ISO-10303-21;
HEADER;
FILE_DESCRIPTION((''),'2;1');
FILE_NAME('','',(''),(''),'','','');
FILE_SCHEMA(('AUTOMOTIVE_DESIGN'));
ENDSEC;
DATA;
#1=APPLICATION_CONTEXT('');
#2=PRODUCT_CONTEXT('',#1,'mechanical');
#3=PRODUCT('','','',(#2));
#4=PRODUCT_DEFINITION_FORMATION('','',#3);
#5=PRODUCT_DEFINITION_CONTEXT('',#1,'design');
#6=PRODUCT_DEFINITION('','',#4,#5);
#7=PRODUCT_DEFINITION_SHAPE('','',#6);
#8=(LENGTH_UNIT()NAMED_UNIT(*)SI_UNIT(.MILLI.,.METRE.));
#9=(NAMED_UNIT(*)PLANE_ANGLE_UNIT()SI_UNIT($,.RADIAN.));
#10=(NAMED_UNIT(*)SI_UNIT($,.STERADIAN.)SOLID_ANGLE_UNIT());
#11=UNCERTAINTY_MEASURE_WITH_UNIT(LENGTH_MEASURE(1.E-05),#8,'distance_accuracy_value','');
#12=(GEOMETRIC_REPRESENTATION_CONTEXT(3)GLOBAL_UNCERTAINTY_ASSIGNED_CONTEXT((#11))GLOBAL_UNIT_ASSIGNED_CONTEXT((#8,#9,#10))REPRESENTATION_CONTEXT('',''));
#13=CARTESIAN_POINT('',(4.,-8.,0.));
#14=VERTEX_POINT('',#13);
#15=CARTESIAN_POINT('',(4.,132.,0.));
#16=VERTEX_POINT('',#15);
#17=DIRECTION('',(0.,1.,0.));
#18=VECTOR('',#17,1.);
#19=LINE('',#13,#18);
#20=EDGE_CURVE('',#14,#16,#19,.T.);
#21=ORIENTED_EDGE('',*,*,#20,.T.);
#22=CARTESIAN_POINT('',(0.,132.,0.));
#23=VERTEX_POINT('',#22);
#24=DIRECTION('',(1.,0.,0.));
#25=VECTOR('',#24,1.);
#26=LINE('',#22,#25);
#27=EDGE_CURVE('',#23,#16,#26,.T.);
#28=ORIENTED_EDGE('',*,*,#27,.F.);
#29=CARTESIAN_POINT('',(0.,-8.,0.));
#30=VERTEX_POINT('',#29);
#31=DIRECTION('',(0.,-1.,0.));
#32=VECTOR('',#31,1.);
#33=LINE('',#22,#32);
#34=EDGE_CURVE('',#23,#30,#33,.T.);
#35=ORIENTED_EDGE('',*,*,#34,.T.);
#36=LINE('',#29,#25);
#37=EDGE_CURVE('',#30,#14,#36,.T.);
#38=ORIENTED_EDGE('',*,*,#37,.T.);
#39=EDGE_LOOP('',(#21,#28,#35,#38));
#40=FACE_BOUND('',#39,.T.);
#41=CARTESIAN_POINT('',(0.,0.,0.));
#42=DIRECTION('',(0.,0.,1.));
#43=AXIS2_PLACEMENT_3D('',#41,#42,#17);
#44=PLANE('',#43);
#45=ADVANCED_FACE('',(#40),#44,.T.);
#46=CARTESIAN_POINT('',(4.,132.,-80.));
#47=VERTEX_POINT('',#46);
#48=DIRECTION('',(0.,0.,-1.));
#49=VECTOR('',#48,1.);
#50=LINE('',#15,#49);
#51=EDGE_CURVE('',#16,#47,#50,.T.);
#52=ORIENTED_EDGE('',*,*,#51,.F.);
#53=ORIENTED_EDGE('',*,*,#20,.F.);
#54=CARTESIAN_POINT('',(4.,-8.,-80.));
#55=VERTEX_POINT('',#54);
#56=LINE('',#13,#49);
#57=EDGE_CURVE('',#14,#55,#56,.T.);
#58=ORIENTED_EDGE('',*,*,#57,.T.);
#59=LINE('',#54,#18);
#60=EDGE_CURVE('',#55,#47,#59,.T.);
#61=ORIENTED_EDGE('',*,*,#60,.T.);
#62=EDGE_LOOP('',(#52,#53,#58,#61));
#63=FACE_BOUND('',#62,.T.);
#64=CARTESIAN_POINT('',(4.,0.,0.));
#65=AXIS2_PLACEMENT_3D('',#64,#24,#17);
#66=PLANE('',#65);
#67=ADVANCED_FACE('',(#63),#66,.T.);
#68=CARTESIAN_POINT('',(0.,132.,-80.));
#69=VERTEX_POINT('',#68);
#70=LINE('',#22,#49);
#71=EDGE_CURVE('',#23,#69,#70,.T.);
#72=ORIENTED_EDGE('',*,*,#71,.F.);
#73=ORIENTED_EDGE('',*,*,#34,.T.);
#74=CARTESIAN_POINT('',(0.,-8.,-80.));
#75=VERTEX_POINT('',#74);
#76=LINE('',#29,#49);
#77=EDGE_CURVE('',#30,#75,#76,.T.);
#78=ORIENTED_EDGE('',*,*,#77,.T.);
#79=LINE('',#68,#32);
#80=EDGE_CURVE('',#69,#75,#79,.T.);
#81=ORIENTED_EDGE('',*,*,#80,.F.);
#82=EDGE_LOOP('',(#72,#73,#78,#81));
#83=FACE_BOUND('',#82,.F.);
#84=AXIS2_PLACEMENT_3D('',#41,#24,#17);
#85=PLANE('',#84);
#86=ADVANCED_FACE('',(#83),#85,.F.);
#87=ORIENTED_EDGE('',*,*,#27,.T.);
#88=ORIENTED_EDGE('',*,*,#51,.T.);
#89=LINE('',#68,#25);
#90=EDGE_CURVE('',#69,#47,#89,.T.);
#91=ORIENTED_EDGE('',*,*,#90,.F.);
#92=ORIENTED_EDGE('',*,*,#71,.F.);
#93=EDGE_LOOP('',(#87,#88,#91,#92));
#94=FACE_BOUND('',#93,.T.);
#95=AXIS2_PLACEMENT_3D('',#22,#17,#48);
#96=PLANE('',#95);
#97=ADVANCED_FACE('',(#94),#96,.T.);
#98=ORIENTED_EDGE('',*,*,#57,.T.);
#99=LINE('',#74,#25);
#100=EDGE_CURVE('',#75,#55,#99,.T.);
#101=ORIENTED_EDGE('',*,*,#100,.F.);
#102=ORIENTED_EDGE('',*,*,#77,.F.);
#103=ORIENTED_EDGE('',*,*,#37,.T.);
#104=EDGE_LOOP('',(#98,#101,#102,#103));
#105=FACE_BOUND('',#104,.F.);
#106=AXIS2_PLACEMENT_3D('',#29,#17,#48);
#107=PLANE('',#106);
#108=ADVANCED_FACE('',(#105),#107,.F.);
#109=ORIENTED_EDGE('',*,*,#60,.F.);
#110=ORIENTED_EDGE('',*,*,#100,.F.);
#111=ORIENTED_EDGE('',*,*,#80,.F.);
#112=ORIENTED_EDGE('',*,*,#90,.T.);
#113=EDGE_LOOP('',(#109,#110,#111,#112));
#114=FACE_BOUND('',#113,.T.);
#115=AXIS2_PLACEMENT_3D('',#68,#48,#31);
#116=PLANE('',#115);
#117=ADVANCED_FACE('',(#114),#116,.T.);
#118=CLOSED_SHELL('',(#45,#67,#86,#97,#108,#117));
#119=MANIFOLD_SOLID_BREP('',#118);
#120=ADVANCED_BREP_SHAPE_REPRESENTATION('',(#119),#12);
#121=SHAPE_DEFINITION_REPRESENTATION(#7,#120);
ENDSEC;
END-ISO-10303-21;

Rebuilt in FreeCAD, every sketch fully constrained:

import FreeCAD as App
import Part
import Sketcher
Q = App.Units.Quantity


def add_polygon(sketch, points):
    """Adds a closed chain of lines whose ends are joined by coincident constraints."""
    first, n = sketch.GeometryCount, len(points)
    for a, b in zip(points, points[1:] + points[:1]):
        sketch.addGeometry(Part.LineSegment(App.Vector(*a, 0), App.Vector(*b, 0)), False)
    for i in range(n):
        sketch.addConstraint(Sketcher.Constraint("Coincident", first + i, 2, first + (i + 1) % n, 1))

doc = App.newDocument("Part")
body = doc.addObject("PartDesign::Body", "Body")

# Sketch on YZ plane
sketch1 = body.newObject("Sketcher::SketchObject", "Sketch")
sketch1.AttachmentSupport = (doc.getObject("YZ_Plane"), [""])
sketch1.MapMode = "FlatFace"
add_polygon(sketch1, [(132, 0), (0, 0), (0, -80), (132, -80)])  # lines 0-3
sketch1.addConstraint([
    Sketcher.Constraint("Horizontal", 0),
    Sketcher.Constraint("Vertical", 1),
    Sketcher.Constraint("Horizontal", 2),
    Sketcher.Constraint("Vertical", 3),
    Sketcher.Constraint("Coincident", 0, 2, -1, 1),
    Sketcher.Constraint("DistanceX", 0, 2, 0, 1, Q("132 mm")),
    Sketcher.Constraint("DistanceY", 1, 2, 1, 1, Q("80 mm")),
])
pad1 = body.newObject("PartDesign::Pad", "Pad")
pad1.Profile = sketch1
pad1.Length = 4

# Sketch on YZ plane
sketch2 = body.newObject("Sketcher::SketchObject", "Sketch001")
sketch2.AttachmentSupport = (doc.getObject("YZ_Plane"), [""])
sketch2.MapMode = "FlatFace"
add_polygon(sketch2, [(0, -80), (0, 0), (-8, 0), (-8, -80)])  # lines 0-3
sketch2.addConstraint([
    Sketcher.Constraint("Vertical", 0),
    Sketcher.Constraint("Horizontal", 1),
    Sketcher.Constraint("Vertical", 2),
    Sketcher.Constraint("Horizontal", 3),
    Sketcher.Constraint("Coincident", 0, 2, -1, 1),
    Sketcher.Constraint("DistanceX", 1, 2, 1, 1, Q("8 mm")),
    Sketcher.Constraint("DistanceY", 0, 1, 0, 2, Q("80 mm")),
])
pad2 = body.newObject("PartDesign::Pad", "Pad001")
pad2.Profile = sketch2
pad2.Length = 4

doc.recompute()
